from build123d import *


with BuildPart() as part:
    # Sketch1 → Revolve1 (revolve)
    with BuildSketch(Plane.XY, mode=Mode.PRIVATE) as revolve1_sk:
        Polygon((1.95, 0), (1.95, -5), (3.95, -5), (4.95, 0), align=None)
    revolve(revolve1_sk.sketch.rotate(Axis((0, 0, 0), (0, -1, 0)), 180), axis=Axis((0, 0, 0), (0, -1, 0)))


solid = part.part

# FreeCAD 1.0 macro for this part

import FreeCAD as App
import Part
import Sketcher
from FreeCAD import Vector
Q = App.Units.Quantity


def add_polygon(sketch, points):
    """Adds a closed chain of lines whose ends are joined by coincident constraints."""
    first, n = sketch.GeometryCount, len(points)
    for a, b in zip(points, points[1:] + points[:1]):
        sketch.addGeometry(Part.LineSegment(App.Vector(*a, 0), App.Vector(*b, 0)), False)
    for i in range(n):
        sketch.addConstraint(Sketcher.Constraint("Coincident", first + i, 2, first + (i + 1) % n, 1))

doc = App.newDocument("Part")
params = doc.addObject("Spreadsheet::Sheet", "Params")
for row, (alias, value) in enumerate([
    ("sketch1_width", "2 mm"),
    ("sketch1_width2", "3 mm"),
    ("sketch1_height", "5 mm"),
    ("revolution_angle", "360 deg"),
], start=1):
    params.set(f"A{row}", alias)
    params.set(f"B{row}", "=" + value)
    params.setAlias(f"B{row}", alias)

body = doc.addObject("PartDesign::Body", "Body")

sketch1 = doc.addObject("Sketcher::SketchObject", "Sketch")
body.addObject(sketch1)
sketch1.AttachmentSupport = (doc.XY_Plane, [""])
sketch1.MapMode = "FlatFace"
add_polygon(sketch1, [(1.9, 0), (1.9, -5), (4, -5), (5, 0)])
sketch1.addConstraint([
    Sketcher.Constraint("Vertical", 0),
    Sketcher.Constraint("Horizontal", 1),
    Sketcher.Constraint("Horizontal", 3),
    Sketcher.Constraint("PointOnObject", 2, 2, -1),
    Sketcher.Constraint("DistanceX", 1, 1, 1, 2, Q("2 mm")),
    Sketcher.Constraint("DistanceX", 3, 2, 3, 1, Q("3 mm")),
    Sketcher.Constraint("DistanceY", 0, 2, 0, 1, Q("5 mm")),
    Sketcher.Constraint("DistanceX", -1, 1, 0, 2, Q("1.95 mm")),
])
sketch1.setExpression("Constraints[8]", "Params.sketch1_width")
sketch1.setExpression("Constraints[9]", "Params.sketch1_width2")
sketch1.setExpression("Constraints[10]", "Params.sketch1_height")
revolution = doc.addObject("PartDesign::Revolution", "Revolution")
body.addObject(revolution)
revolution.Profile = sketch1
revolution.ReferenceAxis = (sketch1, ["V_Axis"])
revolution.setExpression("Angle", "Params.revolution_angle")

doc.recompute()
